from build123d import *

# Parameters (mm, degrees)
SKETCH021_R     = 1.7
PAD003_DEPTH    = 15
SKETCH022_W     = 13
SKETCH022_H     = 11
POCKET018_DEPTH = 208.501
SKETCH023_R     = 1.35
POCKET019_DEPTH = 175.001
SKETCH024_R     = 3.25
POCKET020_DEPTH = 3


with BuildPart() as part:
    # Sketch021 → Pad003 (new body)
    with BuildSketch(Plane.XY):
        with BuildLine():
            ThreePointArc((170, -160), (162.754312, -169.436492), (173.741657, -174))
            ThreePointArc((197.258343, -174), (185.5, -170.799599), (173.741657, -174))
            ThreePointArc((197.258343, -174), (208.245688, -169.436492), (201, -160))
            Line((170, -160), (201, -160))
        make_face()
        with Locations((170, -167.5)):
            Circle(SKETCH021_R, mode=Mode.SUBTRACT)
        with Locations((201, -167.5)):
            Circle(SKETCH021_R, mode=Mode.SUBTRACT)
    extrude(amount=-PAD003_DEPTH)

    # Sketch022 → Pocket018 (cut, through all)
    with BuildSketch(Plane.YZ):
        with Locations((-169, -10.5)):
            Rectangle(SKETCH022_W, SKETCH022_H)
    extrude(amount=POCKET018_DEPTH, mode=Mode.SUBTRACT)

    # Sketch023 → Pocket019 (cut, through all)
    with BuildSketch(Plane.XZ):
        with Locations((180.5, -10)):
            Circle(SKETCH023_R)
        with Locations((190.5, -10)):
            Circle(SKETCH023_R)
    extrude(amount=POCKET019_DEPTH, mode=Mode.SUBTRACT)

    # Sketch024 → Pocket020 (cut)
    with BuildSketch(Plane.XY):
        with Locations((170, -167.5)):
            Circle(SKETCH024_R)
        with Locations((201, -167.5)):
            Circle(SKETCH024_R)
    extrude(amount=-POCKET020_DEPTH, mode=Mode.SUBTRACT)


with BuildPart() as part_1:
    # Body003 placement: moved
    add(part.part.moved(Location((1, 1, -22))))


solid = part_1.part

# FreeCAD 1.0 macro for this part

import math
import FreeCAD as App
import Part
import Sketcher

V = App.Vector

doc = App.newDocument("Part")
body = doc.addObject("PartDesign::Body", "Body")

sketch1 = body.newObject("Sketcher::SketchObject", "Sketch")
sketch1.AttachmentSupport = (doc.getObject("XY_Plane"), [""])
sketch1.MapMode = "FlatFace"
sketch1.addGeometry([
    Part.ArcOfCircle(Part.Circle(V(170, -167.5, 0), V(0, 0, 1), 7.5), math.radians(90), math.radians(300)),
    Part.ArcOfCircle(Part.Circle(V(185.5, -194, 0), V(0, 0, 1), 23.2), math.radians(60), math.radians(120)),
    Part.ArcOfCircle(Part.Circle(V(201, -167.5, 0), V(0, 0, 1), 7.5), math.radians(-120), math.radians(90)),
    Part.LineSegment(V(201, -160, 0), V(170, -160, 0)),
    Part.Circle(V(170, -167.5, 0), V(0, 0, 1), 1.7),
    Part.Circle(V(201, -167.5, 0), V(0, 0, 1), 1.7),
], False)
sketch1.addConstraint([
    Sketcher.Constraint("Coincident", 0, 2, 1, 2),
    Sketcher.Constraint("Coincident", 1, 1, 2, 1),
    Sketcher.Constraint("Tangent", 2, 2, 3, 1),
    Sketcher.Constraint("Tangent", 3, 2, 0, 1),
    Sketcher.Constraint("Horizontal", 3),
    Sketcher.Constraint("Coincident", 4, 3, 0, 3),
    Sketcher.Constraint("Coincident", 5, 3, 2, 3),
    Sketcher.Constraint("Equal", 0, 2),
    Sketcher.Constraint("Equal", 4, 5),
    Sketcher.Constraint("Horizontal", 0, 2, 1, 1),
    Sketcher.Constraint("Diameter", 4, 3.4),
    Sketcher.Constraint("Radius", 0, 7.5),
    Sketcher.Constraint("DistanceX", 3, 2, 3, 1, 31.0),
    Sketcher.Constraint("DistanceX", -1, 1, 0, 3, 170.0),
    Sketcher.Constraint("DistanceY", 0, 2, -1, 1, 174.0),
    Sketcher.Constraint("DistanceY", 2, 2, -1, 1, 160.0),
    Sketcher.Constraint("Radius", 1, 23.200405),
])
pad1 = body.newObject("PartDesign::Pad", "Pad")
pad1.Profile = sketch1
pad1.Length = 15
pad1.Reversed = True

sketch2 = body.newObject("Sketcher::SketchObject", "Sketch001")
sketch2.AttachmentSupport = (doc.getObject("YZ_Plane"), [""])
sketch2.MapMode = "FlatFace"
sketch2.addGeometry([
    Part.LineSegment(V(-176, -5, 0), V(-176, -16, 0)),
    Part.LineSegment(V(-176, -16, 0), V(-162, -16, 0)),
    Part.LineSegment(V(-162, -16, 0), V(-162, -5, 0)),
    Part.LineSegment(V(-162, -5, 0), V(-176, -5, 0)),
], False)
sketch2.addConstraint([
    Sketcher.Constraint("Coincident", 0, 2, 1, 1),
    Sketcher.Constraint("Coincident", 1, 2, 2, 1),
    Sketcher.Constraint("Coincident", 2, 2, 3, 1),
    Sketcher.Constraint("Coincident", 3, 2, 0, 1),
    Sketcher.Constraint("Vertical", 0),
    Sketcher.Constraint("Horizontal", 1),
    Sketcher.Constraint("Vertical", 2),
    Sketcher.Constraint("Horizontal", 3),
    Sketcher.Constraint("DistanceX", 1, 1, 1, 2, 13.0),
    Sketcher.Constraint("DistanceY", 0, 2, 0, 1, 11.0),
    Sketcher.Constraint("DistanceY", 0, 2, -1, 1, 16.0),
    Sketcher.Constraint("DistanceX", 0, 2, -1, 1, 175.5),
])
pocket1 = body.newObject("PartDesign::Pocket", "Pocket")
pocket1.Profile = sketch2
pocket1.Type = "ThroughAll"
pocket1.Reversed = True

sketch3 = body.newObject("Sketcher::SketchObject", "Sketch002")
sketch3.AttachmentSupport = (doc.getObject("XZ_Plane"), [""])
sketch3.MapMode = "FlatFace"
sketch3.addGeometry([
    Part.Circle(V(180.5, -10, 0), V(0, 0, 1), 1.4),
    Part.Circle(V(190.5, -10, 0), V(0, 0, 1), 1.4),
], False)
sketch3.addConstraint([
    Sketcher.Constraint("Equal", 0, 1),
    Sketcher.Constraint("Horizontal", 0, 3, 1, 3),
    Sketcher.Constraint("Diameter", 0, 2.7),
    Sketcher.Constraint("DistanceY", 0, 3, -1, 1, 10.0),
    Sketcher.Constraint("DistanceX", 0, 3, 1, 3, 10.0),
    Sketcher.Constraint("DistanceX", -1, 1, 0, 3, 180.5),
])
pocket2 = body.newObject("PartDesign::Pocket", "Pocket001")
pocket2.Profile = sketch3
pocket2.Type = "ThroughAll"
pocket2.Reversed = True

sketch4 = body.newObject("Sketcher::SketchObject", "Sketch003")
sketch4.AttachmentSupport = (doc.getObject("XY_Plane"), [""])
sketch4.MapMode = "FlatFace"
sketch4.addGeometry([
    Part.Circle(V(170, -167.5, 0), V(0, 0, 1), 3.2),
    Part.Circle(V(201, -167.5, 0), V(0, 0, 1), 3.2),
], False)
sketch4.addConstraint([
    Sketcher.Constraint("Equal", 0, 1),
    Sketcher.Constraint("Horizontal", 0, 3, 1, 3),
    Sketcher.Constraint("Diameter", 0, 6.5),
    Sketcher.Constraint("DistanceX", -1, 1, 0, 3, 170.0),
    Sketcher.Constraint("DistanceX", -1, 1, 1, 3, 201.0),
    Sketcher.Constraint("DistanceY", 0, 3, -1, 1, 167.5),
])
pocket3 = body.newObject("PartDesign::Pocket", "Pocket002")
pocket3.Profile = sketch4
pocket3.Length = 3
body2 = doc.addObject("PartDesign::Body", "Body001")
doc.recompute()

body.Placement = App.Placement(V(1, 1, -22), App.Rotation(V(0, 0, 1), 0))
boolean = body2.newObject("PartDesign::Boolean", "Boolean")
boolean.Type = "Fuse"
boolean.addObjects([body])

doc.recompute()
